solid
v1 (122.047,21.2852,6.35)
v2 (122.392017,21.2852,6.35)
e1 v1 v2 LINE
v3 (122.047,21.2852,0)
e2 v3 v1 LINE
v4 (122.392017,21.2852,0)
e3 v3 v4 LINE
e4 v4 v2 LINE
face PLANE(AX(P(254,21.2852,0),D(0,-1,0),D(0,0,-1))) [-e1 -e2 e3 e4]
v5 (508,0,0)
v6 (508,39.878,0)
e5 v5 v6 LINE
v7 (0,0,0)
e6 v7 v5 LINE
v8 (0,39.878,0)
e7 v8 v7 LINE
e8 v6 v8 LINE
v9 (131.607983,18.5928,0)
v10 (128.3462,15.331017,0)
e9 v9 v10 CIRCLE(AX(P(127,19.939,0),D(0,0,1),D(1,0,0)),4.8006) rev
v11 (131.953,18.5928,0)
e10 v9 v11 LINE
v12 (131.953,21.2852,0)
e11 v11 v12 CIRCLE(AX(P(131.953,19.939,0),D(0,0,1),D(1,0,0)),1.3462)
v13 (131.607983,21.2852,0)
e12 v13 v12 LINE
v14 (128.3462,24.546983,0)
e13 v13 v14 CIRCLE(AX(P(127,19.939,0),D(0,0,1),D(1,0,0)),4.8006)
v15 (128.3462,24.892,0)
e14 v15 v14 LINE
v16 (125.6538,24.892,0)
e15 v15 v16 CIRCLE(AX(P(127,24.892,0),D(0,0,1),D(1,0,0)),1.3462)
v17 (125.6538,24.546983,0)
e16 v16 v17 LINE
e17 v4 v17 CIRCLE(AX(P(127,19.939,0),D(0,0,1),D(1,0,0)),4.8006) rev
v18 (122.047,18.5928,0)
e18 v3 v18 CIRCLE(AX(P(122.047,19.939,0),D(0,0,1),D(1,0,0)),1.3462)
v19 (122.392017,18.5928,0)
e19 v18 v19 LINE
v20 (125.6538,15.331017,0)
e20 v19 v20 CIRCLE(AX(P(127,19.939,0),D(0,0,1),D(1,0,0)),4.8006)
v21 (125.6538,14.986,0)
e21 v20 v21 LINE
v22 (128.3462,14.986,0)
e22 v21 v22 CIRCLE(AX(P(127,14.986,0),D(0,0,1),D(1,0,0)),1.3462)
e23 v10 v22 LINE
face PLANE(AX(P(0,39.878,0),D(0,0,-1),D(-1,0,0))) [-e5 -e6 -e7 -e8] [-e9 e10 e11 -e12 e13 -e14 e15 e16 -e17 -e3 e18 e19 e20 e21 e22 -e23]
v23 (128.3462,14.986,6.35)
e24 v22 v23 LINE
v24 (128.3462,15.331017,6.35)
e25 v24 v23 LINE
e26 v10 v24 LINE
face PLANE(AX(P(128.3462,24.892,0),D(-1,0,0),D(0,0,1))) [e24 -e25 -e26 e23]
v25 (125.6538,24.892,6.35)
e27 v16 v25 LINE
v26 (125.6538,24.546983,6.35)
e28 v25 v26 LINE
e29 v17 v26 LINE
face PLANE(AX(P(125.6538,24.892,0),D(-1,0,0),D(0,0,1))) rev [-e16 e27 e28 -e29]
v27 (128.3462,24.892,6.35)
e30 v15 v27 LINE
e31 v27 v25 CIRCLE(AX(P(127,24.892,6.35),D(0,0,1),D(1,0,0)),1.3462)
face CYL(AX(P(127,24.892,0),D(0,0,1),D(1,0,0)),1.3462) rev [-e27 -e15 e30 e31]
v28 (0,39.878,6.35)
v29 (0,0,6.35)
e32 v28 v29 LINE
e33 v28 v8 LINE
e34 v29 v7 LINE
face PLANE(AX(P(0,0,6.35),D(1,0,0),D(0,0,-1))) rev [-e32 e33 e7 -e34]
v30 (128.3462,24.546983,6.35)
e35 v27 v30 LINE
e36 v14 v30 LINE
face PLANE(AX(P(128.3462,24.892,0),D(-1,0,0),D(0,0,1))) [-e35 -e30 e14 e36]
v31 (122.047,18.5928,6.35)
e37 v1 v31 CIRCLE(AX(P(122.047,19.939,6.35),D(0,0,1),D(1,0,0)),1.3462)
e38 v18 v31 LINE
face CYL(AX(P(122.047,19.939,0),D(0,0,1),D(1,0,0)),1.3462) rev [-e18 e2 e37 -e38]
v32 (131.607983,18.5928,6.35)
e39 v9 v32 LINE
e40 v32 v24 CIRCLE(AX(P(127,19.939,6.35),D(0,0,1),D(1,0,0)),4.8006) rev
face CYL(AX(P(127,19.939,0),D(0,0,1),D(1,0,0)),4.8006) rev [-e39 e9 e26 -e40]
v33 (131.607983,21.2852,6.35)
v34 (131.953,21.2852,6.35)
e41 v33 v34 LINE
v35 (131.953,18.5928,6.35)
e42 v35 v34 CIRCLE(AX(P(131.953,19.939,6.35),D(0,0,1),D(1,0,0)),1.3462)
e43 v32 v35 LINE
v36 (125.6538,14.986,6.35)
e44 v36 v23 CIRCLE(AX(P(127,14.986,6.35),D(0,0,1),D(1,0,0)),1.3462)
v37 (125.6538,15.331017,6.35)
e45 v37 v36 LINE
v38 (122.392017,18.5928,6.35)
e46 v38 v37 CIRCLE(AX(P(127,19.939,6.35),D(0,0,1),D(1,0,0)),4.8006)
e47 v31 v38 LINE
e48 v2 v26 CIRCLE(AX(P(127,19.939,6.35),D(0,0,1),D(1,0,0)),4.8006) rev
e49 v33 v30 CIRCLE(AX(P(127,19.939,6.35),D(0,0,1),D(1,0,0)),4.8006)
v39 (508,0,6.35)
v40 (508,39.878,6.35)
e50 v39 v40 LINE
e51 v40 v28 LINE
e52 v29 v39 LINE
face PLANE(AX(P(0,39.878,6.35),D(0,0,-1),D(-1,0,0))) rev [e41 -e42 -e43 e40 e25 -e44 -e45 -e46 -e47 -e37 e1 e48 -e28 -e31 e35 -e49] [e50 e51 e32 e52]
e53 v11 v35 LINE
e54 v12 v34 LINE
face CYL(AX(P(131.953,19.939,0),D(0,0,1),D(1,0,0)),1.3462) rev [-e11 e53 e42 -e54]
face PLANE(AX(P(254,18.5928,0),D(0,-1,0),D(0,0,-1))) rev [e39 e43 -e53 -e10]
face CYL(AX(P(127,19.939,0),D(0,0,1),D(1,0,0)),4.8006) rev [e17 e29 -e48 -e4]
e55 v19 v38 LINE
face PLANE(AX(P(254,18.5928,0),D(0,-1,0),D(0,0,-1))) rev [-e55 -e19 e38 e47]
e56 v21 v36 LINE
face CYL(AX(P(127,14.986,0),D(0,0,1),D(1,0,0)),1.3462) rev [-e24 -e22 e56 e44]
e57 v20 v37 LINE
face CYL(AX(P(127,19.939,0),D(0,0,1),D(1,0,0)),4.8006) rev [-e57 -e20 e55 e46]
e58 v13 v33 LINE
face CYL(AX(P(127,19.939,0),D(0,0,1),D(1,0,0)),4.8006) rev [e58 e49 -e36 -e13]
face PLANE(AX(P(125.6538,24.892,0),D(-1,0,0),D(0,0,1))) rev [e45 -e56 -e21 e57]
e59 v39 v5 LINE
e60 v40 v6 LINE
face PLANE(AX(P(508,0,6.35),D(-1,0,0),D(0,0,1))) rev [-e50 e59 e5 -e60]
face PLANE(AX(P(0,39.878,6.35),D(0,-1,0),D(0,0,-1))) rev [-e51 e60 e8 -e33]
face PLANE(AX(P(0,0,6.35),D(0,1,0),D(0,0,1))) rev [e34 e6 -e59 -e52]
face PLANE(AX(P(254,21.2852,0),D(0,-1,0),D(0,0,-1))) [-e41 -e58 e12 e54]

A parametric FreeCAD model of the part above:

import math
import FreeCAD as App
import Part
import Sketcher
Q = App.Units.Quantity

doc = App.newDocument("Part")
params = doc.addObject("Spreadsheet::Sheet", "Params")
for row, (alias, value) in enumerate([
    ("sketch1_width", "20 in"),
    ("sketch1_height", "1.57 in"),
    ("pad1_length", "0.25 in"),
    ("sketch2_radius", "0.053 in"),
    ("sketch2_radius2", "0.189 in"),
], start=1):
    params.set(f"A{row}", alias)
    params.set(f"B{row}", "=" + value)
    params.setAlias(f"B{row}", alias)

body = doc.addObject("PartDesign::Body", "Body")

# Sketch on XY plane
sketch1 = doc.addObject("Sketcher::SketchObject", "Sketch")
body.addObject(sketch1)
sketch1.AttachmentSupport = (doc.XY_Plane, [""])
sketch1.MapMode = "FlatFace"
sketch1.addGeometry([
    Part.LineSegment(App.Vector(0, 40, 0), App.Vector(0, 0, 0)),
    Part.LineSegment(App.Vector(0, 0, 0), App.Vector(508, 0, 0)),
    Part.LineSegment(App.Vector(508, 0, 0), App.Vector(508, 40, 0)),
    Part.LineSegment(App.Vector(508, 40, 0), App.Vector(0, 40, 0)),
], False)
sketch1.addConstraint([
    Sketcher.Constraint("Coincident", 0, 2, 1, 1),
    Sketcher.Constraint("Coincident", 1, 2, 2, 1),
    Sketcher.Constraint("Coincident", 2, 2, 3, 1),
    Sketcher.Constraint("Coincident", 3, 2, 0, 1),
    Sketcher.Constraint("Vertical", 0),
    Sketcher.Constraint("Horizontal", 1),
    Sketcher.Constraint("Vertical", 2),
    Sketcher.Constraint("Horizontal", 3),
    Sketcher.Constraint("Coincident", 0, 2, -1, 1),
    Sketcher.Constraint("DistanceX", 1, 1, 1, 2, Q("20 in")),
    Sketcher.Constraint("DistanceY", 0, 2, 0, 1, Q("1.57 in")),
])
sketch1.setExpression("Constraints[9]", "Params.sketch1_width")
sketch1.setExpression("Constraints[10]", "Params.sketch1_height")
pad1 = doc.addObject("PartDesign::Pad", "Pad")
body.addObject(pad1)
pad1.Profile = sketch1
pad1.setExpression("Length", "Params.pad1_length")

# Sketch on XY plane
sketch2 = doc.addObject("Sketcher::SketchObject", "Sketch001")
body.addObject(sketch2)
sketch2.AttachmentSupport = (doc.XY_Plane, [""])
sketch2.MapMode = "FlatFace"
sketch2.AttachmentOffset = App.Placement(App.Vector(0, 0, 0.25 * 25.4), App.Rotation())
sketch2.addGeometry([
    Part.ArcOfCircle(Part.Circle(App.Vector(127, 24.89, 0), App.Vector(0, 0, 1), 1.35), math.radians(0), math.radians(180)),  # 0
    Part.LineSegment(App.Vector(125.65, 24.89, 0), App.Vector(125.65, 24.55, 0)),  # 1
    Part.ArcOfCircle(Part.Circle(App.Vector(127, 19.94, 0), App.Vector(0, 0, 1), 4.8), math.radians(106), math.radians(164)),  # 2
    Part.LineSegment(App.Vector(122.39, 21.29, 0), App.Vector(122.05, 21.29, 0)),  # 3
    Part.ArcOfCircle(Part.Circle(App.Vector(122.05, 19.94, 0), App.Vector(0, 0, 1), 1.35), math.radians(90), math.radians(270)),  # 4
    Part.LineSegment(App.Vector(122.05, 18.59, 0), App.Vector(122.39, 18.59, 0)),  # 5
    Part.ArcOfCircle(Part.Circle(App.Vector(127, 19.94, 0), App.Vector(0, 0, 1), 4.8), math.radians(-164), math.radians(-106)),  # 6
    Part.LineSegment(App.Vector(125.65, 15.33, 0), App.Vector(125.65, 14.99, 0)),  # 7
    Part.ArcOfCircle(Part.Circle(App.Vector(127, 14.99, 0), App.Vector(0, 0, 1), 1.35), math.radians(180), math.radians(360)),  # 8
    Part.LineSegment(App.Vector(128.35, 14.99, 0), App.Vector(128.35, 15.33, 0)),  # 9
    Part.ArcOfCircle(Part.Circle(App.Vector(127, 19.94, 0), App.Vector(0, 0, 1), 4.8), math.radians(-74), math.radians(-16)),  # 10
    Part.LineSegment(App.Vector(131.61, 18.59, 0), App.Vector(131.95, 18.59, 0)),  # 11
    Part.ArcOfCircle(Part.Circle(App.Vector(131.95, 19.94, 0), App.Vector(0, 0, 1), 1.35), math.radians(-90), math.radians(90)),  # 12
    Part.LineSegment(App.Vector(131.95, 21.29, 0), App.Vector(131.61, 21.29, 0)),  # 13
    Part.ArcOfCircle(Part.Circle(App.Vector(127, 19.94, 0), App.Vector(0, 0, 1), 4.8), math.radians(16), math.radians(74)),  # 14
    Part.LineSegment(App.Vector(128.35, 24.55, 0), App.Vector(128.35, 24.89, 0)),  # 15
], False)
sketch2.addConstraint([
    Sketcher.Constraint("Tangent", 0, 2, 1, 1),
    Sketcher.Constraint("Coincident", 1, 2, 2, 1),
    Sketcher.Constraint("Coincident", 2, 2, 3, 1),
    Sketcher.Constraint("Tangent", 3, 2, 4, 1),
    Sketcher.Constraint("Tangent", 4, 2, 5, 1),
    Sketcher.Constraint("Coincident", 5, 2, 6, 1),
    Sketcher.Constraint("Coincident", 6, 2, 7, 1),
    Sketcher.Constraint("Tangent", 7, 2, 8, 1),
    Sketcher.Constraint("Tangent", 8, 2, 9, 1),
    Sketcher.Constraint("Coincident", 9, 2, 10, 1),
    Sketcher.Constraint("Coincident", 10, 2, 11, 1),
    Sketcher.Constraint("Tangent", 11, 2, 12, 1),
    Sketcher.Constraint("Tangent", 12, 2, 13, 1),
    Sketcher.Constraint("Coincident", 13, 2, 14, 1),
    Sketcher.Constraint("Coincident", 14, 2, 15, 1),
    Sketcher.Constraint("Tangent", 15, 2, 0, 1),
    Sketcher.Constraint("Vertical", 1),
    Sketcher.Constraint("Horizontal", 3),
    Sketcher.Constraint("Horizontal", 5),
    Sketcher.Constraint("Vertical", 7),
    Sketcher.Constraint("Vertical", 9),
    Sketcher.Constraint("Horizontal", 11),
    Sketcher.Constraint("Horizontal", 13),
    Sketcher.Constraint("Vertical", 15),
    Sketcher.Constraint("Coincident", 6, 3, 2, 3),
    Sketcher.Constraint("Coincident", 10, 3, 2, 3),
    Sketcher.Constraint("Coincident", 14, 3, 2, 3),
    Sketcher.Constraint("Equal", 0, 4),
    Sketcher.Constraint("Equal", 2, 6),
    Sketcher.Constraint("Equal", 4, 8),
    Sketcher.Constraint("Equal", 6, 10),
    Sketcher.Constraint("Equal", 8, 12),
    Sketcher.Constraint("Equal", 10, 14),
    Sketcher.Constraint("Horizontal", 2, 3, 4, 3),
    Sketcher.Constraint("Horizontal", 10, 3, 12, 3),
    Sketcher.Constraint("Horizontal", 6, 2, 9, 2),
    Sketcher.Constraint("Horizontal", 1, 2, 14, 2),
    Sketcher.Constraint("Equal", 5, 11),
    Sketcher.Constraint("Equal", 13, 1),
    Sketcher.Constraint("Equal", 1, 7),
    Sketcher.Constraint("DistanceX", -1, 1, 0, 3, Q("5 in")),
    Sketcher.Constraint("Radius", 0, Q("0.053 in")),
    Sketcher.Constraint("Radius", 2, Q("0.189 in")),
    Sketcher.Constraint("DistanceY", -1, 1, 0, 3, Q("0.98 in")),
    Sketcher.Constraint("DistanceY", -1, 1, 8, 3, Q("0.59 in")),
])
sketch2.setExpression("Constraints[41]", "Params.sketch2_radius")
sketch2.setExpression("Constraints[42]", "Params.sketch2_radius2")
pocket1 = doc.addObject("PartDesign::Pocket", "Pocket")
body.addObject(pocket1)
pocket1.Profile = sketch2
pocket1.Type = "ThroughAll"

doc.recompute()
